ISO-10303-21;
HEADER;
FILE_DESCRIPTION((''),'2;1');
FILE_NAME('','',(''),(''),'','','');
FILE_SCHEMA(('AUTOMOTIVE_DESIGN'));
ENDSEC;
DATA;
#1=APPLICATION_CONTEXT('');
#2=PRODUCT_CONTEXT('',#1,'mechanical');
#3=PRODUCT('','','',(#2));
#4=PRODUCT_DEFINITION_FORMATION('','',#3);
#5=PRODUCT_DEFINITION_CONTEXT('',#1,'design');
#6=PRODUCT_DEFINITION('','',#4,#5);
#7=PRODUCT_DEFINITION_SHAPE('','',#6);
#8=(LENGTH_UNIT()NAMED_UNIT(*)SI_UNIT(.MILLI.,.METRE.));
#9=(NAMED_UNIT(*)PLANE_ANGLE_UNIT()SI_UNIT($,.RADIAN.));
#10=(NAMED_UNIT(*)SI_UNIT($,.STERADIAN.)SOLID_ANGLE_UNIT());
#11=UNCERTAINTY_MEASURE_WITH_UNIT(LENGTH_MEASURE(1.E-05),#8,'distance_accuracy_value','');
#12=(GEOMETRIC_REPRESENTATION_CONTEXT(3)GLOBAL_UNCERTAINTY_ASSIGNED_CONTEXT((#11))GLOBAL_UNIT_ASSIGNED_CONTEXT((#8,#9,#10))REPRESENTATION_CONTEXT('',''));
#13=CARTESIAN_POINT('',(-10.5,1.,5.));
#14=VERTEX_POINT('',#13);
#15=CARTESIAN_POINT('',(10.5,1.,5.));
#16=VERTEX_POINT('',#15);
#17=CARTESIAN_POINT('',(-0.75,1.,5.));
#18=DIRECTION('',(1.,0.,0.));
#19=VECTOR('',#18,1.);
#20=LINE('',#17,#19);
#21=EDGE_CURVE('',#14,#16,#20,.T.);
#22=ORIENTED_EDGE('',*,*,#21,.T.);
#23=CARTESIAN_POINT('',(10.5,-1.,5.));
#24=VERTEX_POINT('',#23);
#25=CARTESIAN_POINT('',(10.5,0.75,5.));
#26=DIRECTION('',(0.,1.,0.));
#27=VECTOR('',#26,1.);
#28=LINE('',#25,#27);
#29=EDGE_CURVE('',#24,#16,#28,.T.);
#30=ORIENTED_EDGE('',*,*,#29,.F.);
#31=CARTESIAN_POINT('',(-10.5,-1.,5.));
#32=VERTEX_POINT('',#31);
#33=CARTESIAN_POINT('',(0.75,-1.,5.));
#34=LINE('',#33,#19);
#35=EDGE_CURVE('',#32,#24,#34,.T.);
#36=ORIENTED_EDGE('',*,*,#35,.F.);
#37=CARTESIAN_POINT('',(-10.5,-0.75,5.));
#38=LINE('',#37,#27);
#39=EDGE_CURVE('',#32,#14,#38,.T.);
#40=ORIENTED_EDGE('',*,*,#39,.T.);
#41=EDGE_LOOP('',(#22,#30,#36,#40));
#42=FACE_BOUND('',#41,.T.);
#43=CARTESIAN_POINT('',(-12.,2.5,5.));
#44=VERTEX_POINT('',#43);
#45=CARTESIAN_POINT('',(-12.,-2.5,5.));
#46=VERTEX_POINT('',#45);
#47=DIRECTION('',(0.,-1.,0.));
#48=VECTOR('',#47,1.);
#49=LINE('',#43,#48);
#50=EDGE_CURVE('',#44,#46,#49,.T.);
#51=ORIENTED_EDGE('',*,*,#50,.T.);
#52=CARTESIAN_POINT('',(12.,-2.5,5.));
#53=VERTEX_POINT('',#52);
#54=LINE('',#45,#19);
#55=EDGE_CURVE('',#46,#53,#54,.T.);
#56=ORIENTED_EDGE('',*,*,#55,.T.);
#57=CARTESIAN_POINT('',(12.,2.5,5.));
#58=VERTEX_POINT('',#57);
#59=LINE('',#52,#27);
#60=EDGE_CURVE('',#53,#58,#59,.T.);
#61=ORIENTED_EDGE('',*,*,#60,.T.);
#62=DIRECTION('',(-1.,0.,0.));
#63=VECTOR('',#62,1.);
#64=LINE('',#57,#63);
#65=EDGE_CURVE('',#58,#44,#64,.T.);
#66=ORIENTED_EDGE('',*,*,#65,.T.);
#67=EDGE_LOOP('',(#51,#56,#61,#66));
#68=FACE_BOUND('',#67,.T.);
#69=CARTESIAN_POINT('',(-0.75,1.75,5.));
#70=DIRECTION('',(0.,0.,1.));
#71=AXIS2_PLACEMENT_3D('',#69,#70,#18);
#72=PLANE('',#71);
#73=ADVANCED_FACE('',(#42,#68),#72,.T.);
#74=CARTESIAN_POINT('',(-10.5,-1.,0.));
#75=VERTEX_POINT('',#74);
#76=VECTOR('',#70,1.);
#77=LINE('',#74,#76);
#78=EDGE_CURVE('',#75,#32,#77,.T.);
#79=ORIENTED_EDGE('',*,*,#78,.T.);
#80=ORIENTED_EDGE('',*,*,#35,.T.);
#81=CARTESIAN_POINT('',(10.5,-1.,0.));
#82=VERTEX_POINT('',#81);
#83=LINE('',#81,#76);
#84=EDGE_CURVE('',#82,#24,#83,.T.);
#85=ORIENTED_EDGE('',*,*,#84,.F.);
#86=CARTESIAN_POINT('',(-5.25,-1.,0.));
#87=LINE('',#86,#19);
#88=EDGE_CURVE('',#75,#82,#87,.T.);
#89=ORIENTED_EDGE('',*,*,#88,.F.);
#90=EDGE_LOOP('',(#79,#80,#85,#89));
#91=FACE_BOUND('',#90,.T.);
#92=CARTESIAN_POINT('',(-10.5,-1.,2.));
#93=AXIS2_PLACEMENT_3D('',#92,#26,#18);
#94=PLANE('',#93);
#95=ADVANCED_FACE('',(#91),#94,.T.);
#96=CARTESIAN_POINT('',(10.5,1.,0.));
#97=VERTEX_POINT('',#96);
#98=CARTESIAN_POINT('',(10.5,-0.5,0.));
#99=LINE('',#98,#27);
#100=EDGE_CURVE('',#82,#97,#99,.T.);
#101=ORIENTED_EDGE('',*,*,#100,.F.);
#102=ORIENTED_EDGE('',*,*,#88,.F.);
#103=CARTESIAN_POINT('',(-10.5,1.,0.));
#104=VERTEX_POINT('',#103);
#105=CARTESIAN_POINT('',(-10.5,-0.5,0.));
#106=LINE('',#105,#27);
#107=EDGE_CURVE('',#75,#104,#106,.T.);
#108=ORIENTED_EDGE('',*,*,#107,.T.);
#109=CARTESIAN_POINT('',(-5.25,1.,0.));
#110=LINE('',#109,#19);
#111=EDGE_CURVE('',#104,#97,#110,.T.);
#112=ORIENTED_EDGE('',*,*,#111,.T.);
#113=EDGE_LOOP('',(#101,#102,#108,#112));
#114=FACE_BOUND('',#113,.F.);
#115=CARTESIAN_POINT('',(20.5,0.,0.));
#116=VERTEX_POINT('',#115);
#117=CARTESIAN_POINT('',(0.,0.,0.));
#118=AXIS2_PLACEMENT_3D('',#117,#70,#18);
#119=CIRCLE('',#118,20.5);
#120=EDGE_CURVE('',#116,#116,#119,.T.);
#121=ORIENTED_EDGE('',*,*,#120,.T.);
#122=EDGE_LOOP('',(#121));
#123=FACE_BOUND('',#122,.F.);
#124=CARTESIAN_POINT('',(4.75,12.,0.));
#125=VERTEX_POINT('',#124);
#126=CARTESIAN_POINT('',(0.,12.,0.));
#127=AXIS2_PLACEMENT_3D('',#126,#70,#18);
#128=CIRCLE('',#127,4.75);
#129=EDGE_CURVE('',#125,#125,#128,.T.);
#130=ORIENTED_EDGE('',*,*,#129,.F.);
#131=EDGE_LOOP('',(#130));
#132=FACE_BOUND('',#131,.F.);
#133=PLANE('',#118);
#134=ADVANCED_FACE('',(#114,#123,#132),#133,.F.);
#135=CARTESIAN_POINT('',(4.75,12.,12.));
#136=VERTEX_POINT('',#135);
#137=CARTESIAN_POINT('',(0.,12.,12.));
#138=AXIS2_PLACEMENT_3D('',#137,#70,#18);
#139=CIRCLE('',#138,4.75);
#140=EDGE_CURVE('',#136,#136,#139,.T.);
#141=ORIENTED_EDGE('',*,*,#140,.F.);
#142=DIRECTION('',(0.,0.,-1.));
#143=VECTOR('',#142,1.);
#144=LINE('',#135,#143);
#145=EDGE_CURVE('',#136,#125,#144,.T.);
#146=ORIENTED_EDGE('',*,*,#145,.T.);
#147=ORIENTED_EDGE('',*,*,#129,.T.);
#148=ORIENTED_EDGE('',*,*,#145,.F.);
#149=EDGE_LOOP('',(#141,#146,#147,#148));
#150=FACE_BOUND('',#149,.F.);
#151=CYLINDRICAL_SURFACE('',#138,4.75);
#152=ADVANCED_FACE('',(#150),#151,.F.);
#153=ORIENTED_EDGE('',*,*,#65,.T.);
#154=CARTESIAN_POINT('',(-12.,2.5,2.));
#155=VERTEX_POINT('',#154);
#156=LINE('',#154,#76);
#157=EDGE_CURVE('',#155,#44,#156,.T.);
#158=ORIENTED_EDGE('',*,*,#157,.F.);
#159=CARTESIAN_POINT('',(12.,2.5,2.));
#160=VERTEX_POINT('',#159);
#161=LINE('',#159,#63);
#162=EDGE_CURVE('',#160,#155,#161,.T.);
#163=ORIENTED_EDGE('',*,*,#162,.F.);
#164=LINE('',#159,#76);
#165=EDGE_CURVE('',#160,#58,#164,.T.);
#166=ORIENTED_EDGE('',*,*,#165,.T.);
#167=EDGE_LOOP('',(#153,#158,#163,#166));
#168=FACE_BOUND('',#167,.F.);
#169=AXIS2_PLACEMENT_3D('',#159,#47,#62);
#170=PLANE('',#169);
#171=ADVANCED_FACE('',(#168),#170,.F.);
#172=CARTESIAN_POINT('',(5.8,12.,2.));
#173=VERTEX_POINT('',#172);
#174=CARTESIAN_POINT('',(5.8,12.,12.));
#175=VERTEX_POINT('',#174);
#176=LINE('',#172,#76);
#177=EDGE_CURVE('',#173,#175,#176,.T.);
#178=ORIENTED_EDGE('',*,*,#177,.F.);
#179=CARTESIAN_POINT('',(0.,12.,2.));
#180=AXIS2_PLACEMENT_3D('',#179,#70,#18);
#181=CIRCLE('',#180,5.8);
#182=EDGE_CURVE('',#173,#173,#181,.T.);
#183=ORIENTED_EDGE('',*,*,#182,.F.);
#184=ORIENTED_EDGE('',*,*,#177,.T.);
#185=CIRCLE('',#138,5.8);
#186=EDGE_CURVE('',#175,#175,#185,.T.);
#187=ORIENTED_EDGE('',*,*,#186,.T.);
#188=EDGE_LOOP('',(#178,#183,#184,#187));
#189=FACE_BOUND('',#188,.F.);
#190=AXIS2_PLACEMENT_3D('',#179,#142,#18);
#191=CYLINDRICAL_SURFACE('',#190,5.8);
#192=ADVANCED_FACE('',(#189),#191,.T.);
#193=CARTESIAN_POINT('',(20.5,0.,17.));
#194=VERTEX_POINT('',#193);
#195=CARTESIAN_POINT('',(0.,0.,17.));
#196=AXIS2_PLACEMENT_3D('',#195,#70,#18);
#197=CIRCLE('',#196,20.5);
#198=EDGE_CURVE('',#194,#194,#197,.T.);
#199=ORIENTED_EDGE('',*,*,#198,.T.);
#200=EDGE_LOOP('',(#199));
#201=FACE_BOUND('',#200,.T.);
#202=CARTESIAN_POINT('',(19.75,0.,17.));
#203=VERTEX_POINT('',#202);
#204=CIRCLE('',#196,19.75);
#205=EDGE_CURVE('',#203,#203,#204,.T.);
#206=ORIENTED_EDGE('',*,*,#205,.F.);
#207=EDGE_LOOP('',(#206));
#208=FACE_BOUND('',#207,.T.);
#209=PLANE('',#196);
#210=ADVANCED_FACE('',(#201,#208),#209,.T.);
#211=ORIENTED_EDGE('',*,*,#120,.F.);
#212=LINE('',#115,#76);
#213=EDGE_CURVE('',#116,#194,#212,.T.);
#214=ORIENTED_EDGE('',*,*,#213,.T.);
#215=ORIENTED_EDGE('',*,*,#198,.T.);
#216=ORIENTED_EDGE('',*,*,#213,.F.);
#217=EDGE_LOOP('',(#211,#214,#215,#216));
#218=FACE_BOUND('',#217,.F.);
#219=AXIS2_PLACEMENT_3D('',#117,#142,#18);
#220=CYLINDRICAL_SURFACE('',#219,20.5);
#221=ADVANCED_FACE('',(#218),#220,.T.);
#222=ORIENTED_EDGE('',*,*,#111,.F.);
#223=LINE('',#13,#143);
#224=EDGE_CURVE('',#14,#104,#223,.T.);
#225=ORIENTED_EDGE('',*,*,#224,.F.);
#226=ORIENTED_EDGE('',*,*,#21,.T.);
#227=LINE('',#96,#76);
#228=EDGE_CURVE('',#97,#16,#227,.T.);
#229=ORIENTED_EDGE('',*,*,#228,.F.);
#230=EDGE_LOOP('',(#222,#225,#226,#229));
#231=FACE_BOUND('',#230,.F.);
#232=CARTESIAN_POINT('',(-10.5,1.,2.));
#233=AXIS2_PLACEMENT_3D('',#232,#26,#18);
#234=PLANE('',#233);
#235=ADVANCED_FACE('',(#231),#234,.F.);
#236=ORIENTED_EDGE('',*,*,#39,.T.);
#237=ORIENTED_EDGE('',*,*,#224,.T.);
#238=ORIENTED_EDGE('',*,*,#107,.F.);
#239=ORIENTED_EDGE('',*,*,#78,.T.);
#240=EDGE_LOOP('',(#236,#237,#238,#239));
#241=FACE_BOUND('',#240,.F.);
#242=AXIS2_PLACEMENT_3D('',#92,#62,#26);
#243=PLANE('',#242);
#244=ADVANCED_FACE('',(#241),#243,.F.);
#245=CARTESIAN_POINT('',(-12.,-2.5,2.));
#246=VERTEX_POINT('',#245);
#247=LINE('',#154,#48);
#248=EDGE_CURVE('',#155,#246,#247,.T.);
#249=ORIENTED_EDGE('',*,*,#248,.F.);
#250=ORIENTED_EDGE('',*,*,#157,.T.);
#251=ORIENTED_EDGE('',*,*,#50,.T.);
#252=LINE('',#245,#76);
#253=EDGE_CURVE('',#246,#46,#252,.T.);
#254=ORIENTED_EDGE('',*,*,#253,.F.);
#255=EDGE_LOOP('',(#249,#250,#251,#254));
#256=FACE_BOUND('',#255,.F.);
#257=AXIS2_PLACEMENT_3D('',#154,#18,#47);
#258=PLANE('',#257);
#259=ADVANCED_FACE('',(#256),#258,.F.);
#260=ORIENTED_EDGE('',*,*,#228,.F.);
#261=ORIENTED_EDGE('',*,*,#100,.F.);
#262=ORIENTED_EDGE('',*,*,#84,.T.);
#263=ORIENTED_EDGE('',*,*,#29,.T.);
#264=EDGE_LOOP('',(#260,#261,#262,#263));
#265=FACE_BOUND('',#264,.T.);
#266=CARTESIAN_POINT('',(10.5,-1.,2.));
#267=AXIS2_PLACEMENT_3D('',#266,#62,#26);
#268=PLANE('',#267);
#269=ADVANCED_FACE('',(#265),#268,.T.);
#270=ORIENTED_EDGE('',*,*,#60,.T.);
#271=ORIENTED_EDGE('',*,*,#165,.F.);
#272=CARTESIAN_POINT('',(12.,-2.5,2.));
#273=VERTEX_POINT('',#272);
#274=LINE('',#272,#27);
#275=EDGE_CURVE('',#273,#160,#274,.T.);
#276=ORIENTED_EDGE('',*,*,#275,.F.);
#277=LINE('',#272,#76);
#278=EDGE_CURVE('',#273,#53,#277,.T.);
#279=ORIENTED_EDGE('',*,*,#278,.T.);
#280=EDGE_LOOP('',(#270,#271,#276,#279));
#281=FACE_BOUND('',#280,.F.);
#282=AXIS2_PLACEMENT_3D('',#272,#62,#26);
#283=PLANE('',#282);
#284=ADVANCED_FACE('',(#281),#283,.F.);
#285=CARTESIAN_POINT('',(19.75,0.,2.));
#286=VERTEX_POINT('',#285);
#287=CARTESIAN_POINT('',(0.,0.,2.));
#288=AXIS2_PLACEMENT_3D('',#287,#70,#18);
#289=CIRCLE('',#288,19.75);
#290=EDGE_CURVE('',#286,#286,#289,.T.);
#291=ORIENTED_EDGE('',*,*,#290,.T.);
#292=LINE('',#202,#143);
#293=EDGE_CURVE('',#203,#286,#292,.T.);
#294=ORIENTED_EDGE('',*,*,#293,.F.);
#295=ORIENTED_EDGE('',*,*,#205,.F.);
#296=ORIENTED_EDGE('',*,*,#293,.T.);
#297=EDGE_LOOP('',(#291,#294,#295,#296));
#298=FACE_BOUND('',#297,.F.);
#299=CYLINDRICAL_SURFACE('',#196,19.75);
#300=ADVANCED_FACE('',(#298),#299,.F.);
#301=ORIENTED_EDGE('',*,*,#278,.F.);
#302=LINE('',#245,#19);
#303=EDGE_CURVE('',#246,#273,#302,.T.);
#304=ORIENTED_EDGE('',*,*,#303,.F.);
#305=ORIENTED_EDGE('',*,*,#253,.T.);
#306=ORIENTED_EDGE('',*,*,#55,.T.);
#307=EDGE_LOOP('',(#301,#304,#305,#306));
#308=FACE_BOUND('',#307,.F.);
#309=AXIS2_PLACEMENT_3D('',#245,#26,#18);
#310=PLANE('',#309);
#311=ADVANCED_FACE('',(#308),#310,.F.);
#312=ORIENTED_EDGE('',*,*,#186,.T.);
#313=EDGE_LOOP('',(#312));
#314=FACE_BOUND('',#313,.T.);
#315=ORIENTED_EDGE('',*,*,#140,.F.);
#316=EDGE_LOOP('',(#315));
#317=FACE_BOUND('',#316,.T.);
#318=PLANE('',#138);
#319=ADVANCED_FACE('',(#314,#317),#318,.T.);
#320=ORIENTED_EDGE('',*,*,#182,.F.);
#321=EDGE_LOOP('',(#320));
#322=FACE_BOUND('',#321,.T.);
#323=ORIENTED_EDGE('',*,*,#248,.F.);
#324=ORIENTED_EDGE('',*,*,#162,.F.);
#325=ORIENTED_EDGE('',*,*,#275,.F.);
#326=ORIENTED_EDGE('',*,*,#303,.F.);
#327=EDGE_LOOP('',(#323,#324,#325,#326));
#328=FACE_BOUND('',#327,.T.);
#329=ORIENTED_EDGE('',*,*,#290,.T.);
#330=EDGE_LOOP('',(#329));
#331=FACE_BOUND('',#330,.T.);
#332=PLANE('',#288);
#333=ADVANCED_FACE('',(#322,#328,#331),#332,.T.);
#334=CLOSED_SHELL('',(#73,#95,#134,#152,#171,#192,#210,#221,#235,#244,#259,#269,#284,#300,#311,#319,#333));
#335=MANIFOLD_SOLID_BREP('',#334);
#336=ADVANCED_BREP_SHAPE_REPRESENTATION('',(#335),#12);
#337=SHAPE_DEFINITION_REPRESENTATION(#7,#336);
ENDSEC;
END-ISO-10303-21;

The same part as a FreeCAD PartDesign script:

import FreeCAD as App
import Part
import Sketcher


def add_polygon(sketch, points):
    """Adds a closed chain of lines whose ends are joined by coincident constraints."""
    first, n = sketch.GeometryCount, len(points)
    for a, b in zip(points, points[1:] + points[:1]):
        sketch.addGeometry(Part.LineSegment(App.Vector(*a, 0), App.Vector(*b, 0)), False)
    for i in range(n):
        sketch.addConstraint(Sketcher.Constraint("Coincident", first + i, 2, first + (i + 1) % n, 1))

doc = App.newDocument("Part")
body = doc.addObject("PartDesign::Body", "Body")

sketch1 = body.newObject("Sketcher::SketchObject", "Sketch")
sketch1.AttachmentSupport = (doc.getObject("XY_Plane"), [""])
sketch1.MapMode = "FlatFace"
sketch1.addGeometry(Part.Circle(App.Vector(0, 0, 0), App.Vector(0, 0, 1), 20), False)
sketch1.addConstraint([
    Sketcher.Constraint("Coincident", 0, 3, -1, 1),
    Sketcher.Constraint("Diameter", 0, 41.0),
])
pad1 = body.newObject("PartDesign::Pad", "Pad")
pad1.Profile = sketch1
pad1.Length = 17

sketch2 = body.newObject("Sketcher::SketchObject", "Sketch001")
sketch2.AttachmentSupport = (doc.getObject("XY_Plane"), [""])
sketch2.MapMode = "FlatFace"
sketch2.AttachmentOffset = App.Placement(App.Vector(0, 0, 17), App.Rotation())
sketch2.addGeometry(Part.Circle(App.Vector(0, 0, 0), App.Vector(0, 0, 1), 20), False)
sketch2.addConstraint([
    Sketcher.Constraint("Coincident", 0, 3, -1, 1),
    Sketcher.Constraint("Diameter", 0, 39.5),
])
pocket1 = body.newObject("PartDesign::Pocket", "Pocket")
pocket1.Profile = sketch2
pocket1.Length = 15

sketch3 = body.newObject("Sketcher::SketchObject", "Sketch002")
sketch3.AttachmentSupport = (doc.getObject("XY_Plane"), [""])
sketch3.MapMode = "FlatFace"
sketch3.AttachmentOffset = App.Placement(App.Vector(0, 0, 2), App.Rotation())
add_polygon(sketch3, [(-10.5, 1), (-10.5, -1), (10.5, -1), (10.5, 1)])
sketch3.addConstraint([
    Sketcher.Constraint("Vertical", 0),
    Sketcher.Constraint("Horizontal", 1),
    Sketcher.Constraint("Vertical", 2),
    Sketcher.Constraint("Horizontal", 3),
    Sketcher.Constraint("Symmetric", 0, 2, 2, 2, -1, 1),
    Sketcher.Constraint("DistanceX", 1, 1, 1, 2, 21.0),
    Sketcher.Constraint("DistanceY", 0, 2, 0, 1, 2.0),
])
pocket2 = body.newObject("PartDesign::Pocket", "Pocket001")
pocket2.Profile = sketch3
pocket2.Length = 5

sketch4 = body.newObject("Sketcher::SketchObject", "Sketch003")
sketch4.AttachmentSupport = (doc.getObject("XY_Plane"), [""])
sketch4.MapMode = "FlatFace"
sketch4.AttachmentOffset = App.Placement(App.Vector(0, 0, 2), App.Rotation())
sketch4.addGeometry(Part.Circle(App.Vector(0, 12, 0), App.Vector(0, 0, 1), 6), False)
sketch4.addConstraint([
    Sketcher.Constraint("PointOnObject", 0, 3, -2),
    Sketcher.Constraint("Diameter", 0, 11.6),
    Sketcher.Constraint("DistanceY", -1, 1, 0, 3, 12.0),
])
pad2 = body.newObject("PartDesign::Pad", "Pad001")
pad2.Profile = sketch4
pad2.Length = 10

sketch5 = body.newObject("Sketcher::SketchObject", "Sketch004")
sketch5.AttachmentSupport = (doc.getObject("XY_Plane"), [""])
sketch5.MapMode = "FlatFace"
sketch5.AttachmentOffset = App.Placement(App.Vector(0, 0, 12), App.Rotation())
sketch5.addGeometry(Part.Circle(App.Vector(0, 12, 0), App.Vector(0, 0, 1), 4.8), False)
sketch5.addConstraint([
    Sketcher.Constraint("PointOnObject", 0, 3, -2),
    Sketcher.Constraint("Diameter", 0, 9.5),
    Sketcher.Constraint("DistanceY", -1, 1, 0, 3, 12.0),
])
pocket3 = body.newObject("PartDesign::Pocket", "Pocket002")
pocket3.Profile = sketch5
pocket3.Length = 13

sketch6 = body.newObject("Sketcher::SketchObject", "Sketch005")
sketch6.AttachmentSupport = (doc.getObject("XY_Plane"), [""])
sketch6.MapMode = "FlatFace"
sketch6.AttachmentOffset = App.Placement(App.Vector(0, 0, 2), App.Rotation())
add_polygon(sketch6, [(-12, 2.5), (-12, -2.5), (12, -2.5), (12, 2.5)])
add_polygon(sketch6, [(-10.5, 1), (10.5, 1), (10.5, -1), (-10.5, -1)])
sketch6.addConstraint([
    Sketcher.Constraint("Vertical", 0),
    Sketcher.Constraint("Horizontal", 1),
    Sketcher.Constraint("Vertical", 2),
    Sketcher.Constraint("Horizontal", 3),
    Sketcher.Constraint("Horizontal", 4),
    Sketcher.Constraint("Vertical", 5),
    Sketcher.Constraint("Horizontal", 6),
    Sketcher.Constraint("Vertical", 7),
    Sketcher.Constraint("Symmetric", 0, 2, 2, 2, -1, 1),
    Sketcher.Constraint("Symmetric", 4, 2, 6, 2, -1, 1),
    Sketcher.Constraint("DistanceX", 1, 1, 1, 2, 24.0),
    Sketcher.Constraint("DistanceX", 4, 1, 4, 2, 21.0),
    Sketcher.Constraint("DistanceY", 0, 2, 0, 1, 5.0),
    Sketcher.Constraint("DistanceY", 5, 2, 5, 1, 2.0),
])
pad3 = body.newObject("PartDesign::Pad", "Pad002")
pad3.Profile = sketch6
pad3.Length = 3

doc.recompute()
